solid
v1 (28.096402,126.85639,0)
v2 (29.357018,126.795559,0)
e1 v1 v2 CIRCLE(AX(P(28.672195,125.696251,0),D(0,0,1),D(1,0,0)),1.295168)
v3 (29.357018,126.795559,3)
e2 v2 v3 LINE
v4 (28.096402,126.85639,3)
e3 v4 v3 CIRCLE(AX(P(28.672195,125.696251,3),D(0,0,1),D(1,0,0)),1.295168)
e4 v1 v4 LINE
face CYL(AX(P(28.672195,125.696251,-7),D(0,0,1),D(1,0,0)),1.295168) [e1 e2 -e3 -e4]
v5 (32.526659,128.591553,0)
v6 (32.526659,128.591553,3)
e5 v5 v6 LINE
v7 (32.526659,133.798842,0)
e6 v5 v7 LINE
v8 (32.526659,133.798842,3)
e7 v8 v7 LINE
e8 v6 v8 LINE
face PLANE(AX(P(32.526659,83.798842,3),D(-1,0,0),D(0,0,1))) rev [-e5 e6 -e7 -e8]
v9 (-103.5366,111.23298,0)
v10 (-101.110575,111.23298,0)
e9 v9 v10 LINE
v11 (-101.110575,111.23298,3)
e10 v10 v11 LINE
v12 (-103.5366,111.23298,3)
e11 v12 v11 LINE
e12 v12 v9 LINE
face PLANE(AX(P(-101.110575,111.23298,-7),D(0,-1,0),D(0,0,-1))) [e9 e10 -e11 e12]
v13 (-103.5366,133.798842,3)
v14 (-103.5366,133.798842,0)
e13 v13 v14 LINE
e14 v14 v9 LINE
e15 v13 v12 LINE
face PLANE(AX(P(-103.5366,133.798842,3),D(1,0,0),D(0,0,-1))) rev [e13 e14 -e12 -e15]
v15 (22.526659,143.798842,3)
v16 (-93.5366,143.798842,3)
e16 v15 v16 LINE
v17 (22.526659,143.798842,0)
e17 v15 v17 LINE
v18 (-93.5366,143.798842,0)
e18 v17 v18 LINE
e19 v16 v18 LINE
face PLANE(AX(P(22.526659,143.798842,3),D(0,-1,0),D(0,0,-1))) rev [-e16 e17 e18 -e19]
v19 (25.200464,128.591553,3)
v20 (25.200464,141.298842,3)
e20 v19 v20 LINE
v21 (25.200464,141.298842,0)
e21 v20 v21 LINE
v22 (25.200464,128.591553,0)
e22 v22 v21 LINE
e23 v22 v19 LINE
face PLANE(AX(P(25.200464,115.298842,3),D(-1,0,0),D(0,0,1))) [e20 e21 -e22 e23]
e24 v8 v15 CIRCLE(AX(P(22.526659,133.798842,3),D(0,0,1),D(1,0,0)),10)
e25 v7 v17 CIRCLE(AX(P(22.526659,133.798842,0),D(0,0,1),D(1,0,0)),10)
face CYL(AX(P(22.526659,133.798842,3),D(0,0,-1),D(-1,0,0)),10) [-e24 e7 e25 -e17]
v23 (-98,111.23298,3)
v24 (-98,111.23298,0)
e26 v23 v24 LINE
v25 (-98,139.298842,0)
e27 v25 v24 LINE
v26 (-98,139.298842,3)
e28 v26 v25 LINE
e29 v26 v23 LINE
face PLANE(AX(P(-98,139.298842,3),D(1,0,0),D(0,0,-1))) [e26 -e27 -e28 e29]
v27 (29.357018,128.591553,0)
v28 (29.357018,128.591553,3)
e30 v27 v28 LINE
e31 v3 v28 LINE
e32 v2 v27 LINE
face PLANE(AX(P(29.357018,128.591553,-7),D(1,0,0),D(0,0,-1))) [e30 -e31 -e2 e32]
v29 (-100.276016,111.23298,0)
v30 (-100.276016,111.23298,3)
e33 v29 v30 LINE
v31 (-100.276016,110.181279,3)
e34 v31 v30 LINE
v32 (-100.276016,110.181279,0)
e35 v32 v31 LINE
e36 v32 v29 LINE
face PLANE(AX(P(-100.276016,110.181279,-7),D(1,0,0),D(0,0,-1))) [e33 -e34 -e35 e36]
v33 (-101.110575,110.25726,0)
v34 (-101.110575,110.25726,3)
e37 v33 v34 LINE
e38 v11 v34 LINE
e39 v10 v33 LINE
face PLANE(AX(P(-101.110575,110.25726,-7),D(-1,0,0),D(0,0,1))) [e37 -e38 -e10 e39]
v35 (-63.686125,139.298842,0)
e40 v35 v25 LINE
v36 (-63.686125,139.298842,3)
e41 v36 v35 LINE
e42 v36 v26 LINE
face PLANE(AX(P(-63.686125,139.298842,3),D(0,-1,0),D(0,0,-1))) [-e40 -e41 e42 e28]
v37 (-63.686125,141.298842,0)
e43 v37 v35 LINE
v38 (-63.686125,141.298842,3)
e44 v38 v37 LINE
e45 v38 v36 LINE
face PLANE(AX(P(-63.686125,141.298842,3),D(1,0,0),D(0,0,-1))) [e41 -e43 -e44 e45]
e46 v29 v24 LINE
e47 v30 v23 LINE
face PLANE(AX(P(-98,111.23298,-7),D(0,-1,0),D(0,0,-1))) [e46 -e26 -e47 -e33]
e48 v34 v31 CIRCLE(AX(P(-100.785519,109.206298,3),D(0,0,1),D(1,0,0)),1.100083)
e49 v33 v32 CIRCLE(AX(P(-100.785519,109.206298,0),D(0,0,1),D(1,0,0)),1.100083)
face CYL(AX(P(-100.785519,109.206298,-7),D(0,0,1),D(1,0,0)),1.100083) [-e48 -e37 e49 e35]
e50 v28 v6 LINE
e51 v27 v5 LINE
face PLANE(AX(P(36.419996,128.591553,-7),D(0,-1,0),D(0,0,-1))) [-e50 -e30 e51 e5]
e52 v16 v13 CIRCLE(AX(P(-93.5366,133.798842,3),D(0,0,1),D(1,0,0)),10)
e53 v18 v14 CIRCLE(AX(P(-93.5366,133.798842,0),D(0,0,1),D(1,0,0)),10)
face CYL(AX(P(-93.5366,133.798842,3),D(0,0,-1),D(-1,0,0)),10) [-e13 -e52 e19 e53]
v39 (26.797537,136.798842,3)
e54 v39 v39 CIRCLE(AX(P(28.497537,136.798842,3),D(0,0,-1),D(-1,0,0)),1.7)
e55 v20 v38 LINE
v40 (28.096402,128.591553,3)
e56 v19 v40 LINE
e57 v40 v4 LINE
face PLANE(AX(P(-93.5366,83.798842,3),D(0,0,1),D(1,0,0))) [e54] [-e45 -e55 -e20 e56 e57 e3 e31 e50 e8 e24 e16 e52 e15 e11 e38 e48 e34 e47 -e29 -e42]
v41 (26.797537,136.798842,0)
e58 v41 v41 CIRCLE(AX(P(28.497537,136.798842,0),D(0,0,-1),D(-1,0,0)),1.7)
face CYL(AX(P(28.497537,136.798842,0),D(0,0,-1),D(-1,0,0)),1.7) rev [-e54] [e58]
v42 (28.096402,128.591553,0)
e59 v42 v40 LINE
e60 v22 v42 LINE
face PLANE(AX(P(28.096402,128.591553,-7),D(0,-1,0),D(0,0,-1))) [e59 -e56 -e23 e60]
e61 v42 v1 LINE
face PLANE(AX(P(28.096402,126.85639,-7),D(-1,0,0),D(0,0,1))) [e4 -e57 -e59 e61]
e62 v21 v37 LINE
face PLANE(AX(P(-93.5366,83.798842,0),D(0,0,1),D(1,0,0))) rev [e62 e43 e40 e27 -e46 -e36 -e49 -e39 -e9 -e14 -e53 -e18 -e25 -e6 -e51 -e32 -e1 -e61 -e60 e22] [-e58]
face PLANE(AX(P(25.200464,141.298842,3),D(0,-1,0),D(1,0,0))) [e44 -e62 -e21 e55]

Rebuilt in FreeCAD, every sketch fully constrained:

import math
import FreeCAD as App
import Part
import Sketcher

V = App.Vector
Q = App.Units.Quantity

doc = App.newDocument("Part")
body = doc.addObject("PartDesign::Body", "Body")

sketch1 = body.newObject("Sketcher::SketchObject", "Sketch")
sketch1.AttachmentSupport = (doc.getObject("XY_Plane"), [""])
sketch1.MapMode = "FlatFace"
sketch1.addGeometry(Part.LineSegment(V(-93.5, 73.8, 0), V(22.5, 73.8, 0)), False)
sketch1.addGeometry(Part.ArcOfCircle(Part.Circle(V(22.5, 83.8, 0), V(0, 0, 1), 10), math.radians(-90), math.radians(0)), False)
sketch1.addGeometry(Part.LineSegment(V(32.5, 83.8, 0), V(32.5, 133.8, 0)), False)
sketch1.addGeometry(Part.ArcOfCircle(Part.Circle(V(22.5, 133.8, 0), V(0, 0, 1), 10), math.radians(0), math.radians(90)), False)
sketch1.addGeometry(Part.LineSegment(V(22.5, 143.8, 0), V(-93.5, 143.8, 0)), False)
sketch1.addGeometry(Part.ArcOfCircle(Part.Circle(V(-93.5, 133.8, 0), V(0, 0, 1), 10), math.radians(90), math.radians(180)), False)
sketch1.addGeometry(Part.LineSegment(V(-103.5, 133.8, 0), V(-103.5, 83.8, 0)), False)
sketch1.addGeometry(Part.ArcOfCircle(Part.Circle(V(-93.5, 83.8, 0), V(0, 0, 1), 10), math.radians(180), math.radians(270)), False)
sketch1.addGeometry(Part.LineSegment(V(7.2, 115.3, 0), V(7.2, 79.1, 0)), False)
sketch1.addGeometry(Part.LineSegment(V(7.2, 79.1, 0), V(-98, 79.1, 0)), False)
sketch1.addGeometry(Part.LineSegment(V(-98, 79.1, 0), V(-98, 139.3, 0)), False)
sketch1.addGeometry(Part.LineSegment(V(-98, 139.3, 0), V(-63.7, 139.3, 0)), False)
sketch1.addGeometry(Part.LineSegment(V(-63.7, 139.3, 0), V(-63.7, 141.3, 0)), False)
sketch1.addGeometry(Part.LineSegment(V(-63.7, 141.3, 0), V(25.2, 141.3, 0)), False)
sketch1.addGeometry(Part.LineSegment(V(25.2, 141.3, 0), V(25.2, 115.3, 0)), False)
sketch1.addGeometry(Part.LineSegment(V(25.2, 115.3, 0), V(7.2, 115.3, 0)), False)
sketch1.addConstraint(Sketcher.Constraint("Tangent", 0, 2, 1, 1))
sketch1.addConstraint(Sketcher.Constraint("Tangent", 1, 2, 2, 1))
sketch1.addConstraint(Sketcher.Constraint("Tangent", 2, 2, 3, 1))
sketch1.addConstraint(Sketcher.Constraint("Tangent", 3, 2, 4, 1))
sketch1.addConstraint(Sketcher.Constraint("Tangent", 4, 2, 5, 1))
sketch1.addConstraint(Sketcher.Constraint("Tangent", 5, 2, 6, 1))
sketch1.addConstraint(Sketcher.Constraint("Tangent", 6, 2, 7, 1))
sketch1.addConstraint(Sketcher.Constraint("Tangent", 7, 2, 0, 1))
sketch1.addConstraint(Sketcher.Constraint("Coincident", 8, 2, 9, 1))
sketch1.addConstraint(Sketcher.Constraint("Coincident", 9, 2, 10, 1))
sketch1.addConstraint(Sketcher.Constraint("Coincident", 10, 2, 11, 1))
sketch1.addConstraint(Sketcher.Constraint("Coincident", 11, 2, 12, 1))
sketch1.addConstraint(Sketcher.Constraint("Coincident", 12, 2, 13, 1))
sketch1.addConstraint(Sketcher.Constraint("Coincident", 13, 2, 14, 1))
sketch1.addConstraint(Sketcher.Constraint("Coincident", 14, 2, 15, 1))
sketch1.addConstraint(Sketcher.Constraint("Coincident", 15, 2, 8, 1))
sketch1.addConstraint(Sketcher.Constraint("Horizontal", 0))
sketch1.addConstraint(Sketcher.Constraint("Vertical", 2))
sketch1.addConstraint(Sketcher.Constraint("Horizontal", 4))
sketch1.addConstraint(Sketcher.Constraint("Vertical", 6))
sketch1.addConstraint(Sketcher.Constraint("Vertical", 8))
sketch1.addConstraint(Sketcher.Constraint("Horizontal", 9))
sketch1.addConstraint(Sketcher.Constraint("Vertical", 10))
sketch1.addConstraint(Sketcher.Constraint("Horizontal", 11))
sketch1.addConstraint(Sketcher.Constraint("Vertical", 12))
sketch1.addConstraint(Sketcher.Constraint("Horizontal", 13))
sketch1.addConstraint(Sketcher.Constraint("Vertical", 14))
sketch1.addConstraint(Sketcher.Constraint("Horizontal", 15))
sketch1.addConstraint(Sketcher.Constraint("Equal", 1, 3))
sketch1.addConstraint(Sketcher.Constraint("Equal", 3, 5))
sketch1.addConstraint(Sketcher.Constraint("Equal", 5, 7))
sketch1.addConstraint(Sketcher.Constraint("Radius", 1, Q("10 mm")))
sketch1.addConstraint(Sketcher.Constraint("DistanceY", 2, 1, 2, 2, Q("50 mm")))
sketch1.addConstraint(Sketcher.Constraint("DistanceY", 12, 1, 12, 2, Q("2 mm")))
sketch1.addConstraint(Sketcher.Constraint("DistanceY", 14, 2, 14, 1, Q("26 mm")))
sketch1.addConstraint(Sketcher.Constraint("DistanceX", 9, 2, -1, 1, Q("98 mm")))
sketch1.addConstraint(Sketcher.Constraint("DistanceY", 10, 2, 4, 2, Q("4.5 mm")))
sketch1.addConstraint(Sketcher.Constraint("DistanceX", 0, 1, 0, 2, Q("116.063259 mm")))
sketch1.addConstraint(Sketcher.Constraint("DistanceX", 9, 2, 9, 1, Q("105.241251 mm")))
sketch1.addConstraint(Sketcher.Constraint("DistanceX", 13, 1, 13, 2, Q("88.88659 mm")))
sketch1.addConstraint(Sketcher.Constraint("DistanceX", 5, 3, -1, 1, Q("93.5366 mm")))
sketch1.addConstraint(Sketcher.Constraint("DistanceX", 11, 1, 11, 2, Q("34.313875 mm")))
sketch1.addConstraint(Sketcher.Constraint("DistanceY", 8, 2, 8, 1, Q("36.185087 mm")))
sketch1.addConstraint(Sketcher.Constraint("DistanceY", -1, 1, 1, 3, Q("83.798842 mm")))
pad1 = body.newObject("PartDesign::Pad", "Pad")
pad1.Profile = sketch1
pad1.Length = 3

sketch2 = body.newObject("Sketcher::SketchObject", "Sketch001")
sketch2.AttachmentSupport = (doc.getObject("XY_Plane"), [""])
sketch2.MapMode = "FlatFace"
sketch2.addGeometry(Part.Circle(V(28.5, 136.8, 0), V(0, 0, 1), 1.7), False)
sketch2.addGeometry(Part.Circle(V(28.5, 81.8, 0), V(0, 0, 1), 1.7), False)
sketch2.addConstraint(Sketcher.Constraint("Equal", 0, 1))
sketch2.addConstraint(Sketcher.Constraint("Vertical", 0, 3, 1, 3))
sketch2.addConstraint(Sketcher.Constraint("Diameter", 0, Q("3.4 mm")))
sketch2.addConstraint(Sketcher.Constraint("DistanceY", 1, 3, 0, 3, Q("55 mm")))
sketch2.addConstraint(Sketcher.Constraint("DistanceY", -1, 1, 0, 3, Q("136.798842 mm")))
sketch2.addConstraint(Sketcher.Constraint("DistanceX", -1, 1, 0, 3, Q("28.497537 mm")))
doc.recompute()
hole = body.newObject("PartDesign::Hole", "Hole")
hole.Profile = sketch2
hole.ThreadType = "None"
hole.Diameter = 3.4
hole.DepthType = "ThroughAll"
hole.Reversed = True

sketch3 = body.newObject("Sketcher::SketchObject", "Sketch002")
sketch3.AttachmentSupport = (doc.getObject("XY_Plane"), [""])
sketch3.MapMode = "FlatFace"
sketch3.AttachmentOffset = App.Placement(V(0, 0, 3), App.Rotation())
sketch3.addGeometry(Part.LineSegment(V(-119.8, 160.1, 0), V(-119.8, 57.5, 0)), False)
sketch3.addGeometry(Part.LineSegment(V(-119.8, 57.5, 0), V(48.8, 57.5, 0)), False)
sketch3.addGeometry(Part.LineSegment(V(48.8, 57.5, 0), V(48.8, 160.1, 0)), False)
sketch3.addGeometry(Part.LineSegment(V(48.8, 160.1, 0), V(-119.8, 160.1, 0)), False)
sketch3.addGeometry(Part.LineSegment(V(25.2, 128.6, 0), V(-98, 111.2, 0)), False)
sketch3.addGeometry(Part.LineSegment(V(-98, 111.2, 0), V(-100.3, 111.2, 0)), False)
sketch3.addGeometry(Part.LineSegment(V(-100.3, 111.2, 0), V(-100.3, 110.2, 0)), False)
sketch3.addGeometry(Part.ArcOfCircle(Part.Circle(V(-100.8, 109.2, 0), V(0, 0, 1), 1.1), math.radians(107), math.radians(422)), False)
sketch3.addGeometry(Part.LineSegment(V(-101.1, 110.3, 0), V(-101.1, 111.2, 0)), False)
sketch3.addGeometry(Part.LineSegment(V(-101.1, 111.2, 0), V(-103.5, 111.2, 0)), False)
sketch3.addGeometry(Part.LineSegment(V(-103.5, 111.2, 0), V(-103.5, 155.2, 0)), False)
sketch3.addGeometry(Part.LineSegment(V(-103.5, 155.2, 0), V(37.5, 146.5, 0)), False)
sketch3.addGeometry(Part.LineSegment(V(37.5, 146.5, 0), V(36.4, 128.6, 0)), False)
sketch3.addGeometry(Part.LineSegment(V(36.4, 128.6, 0), V(29.4, 128.6, 0)), False)
sketch3.addGeometry(Part.LineSegment(V(29.4, 128.6, 0), V(29.4, 126.8, 0)), False)
sketch3.addGeometry(Part.ArcOfCircle(Part.Circle(V(28.7, 125.7, 0), V(0, 0, 1), 1.3), math.radians(116), math.radians(418)), False)
sketch3.addGeometry(Part.LineSegment(V(28.1, 126.9, 0), V(28.1, 128.6, 0)), False)
sketch3.addGeometry(Part.LineSegment(V(28.1, 128.6, 0), V(25.2, 128.6, 0)), False)
sketch3.addConstraint(Sketcher.Constraint("Coincident", 0, 2, 1, 1))
sketch3.addConstraint(Sketcher.Constraint("Coincident", 1, 2, 2, 1))
sketch3.addConstraint(Sketcher.Constraint("Coincident", 2, 2, 3, 1))
sketch3.addConstraint(Sketcher.Constraint("Coincident", 3, 2, 0, 1))
sketch3.addConstraint(Sketcher.Constraint("Coincident", 4, 2, 5, 1))
sketch3.addConstraint(Sketcher.Constraint("Coincident", 5, 2, 6, 1))
sketch3.addConstraint(Sketcher.Constraint("Coincident", 6, 2, 7, 2))
sketch3.addConstraint(Sketcher.Constraint("Coincident", 7, 1, 8, 1))
sketch3.addConstraint(Sketcher.Constraint("Coincident", 8, 2, 9, 1))
sketch3.addConstraint(Sketcher.Constraint("Coincident", 9, 2, 10, 1))
sketch3.addConstraint(Sketcher.Constraint("Coincident", 10, 2, 11, 1))
sketch3.addConstraint(Sketcher.Constraint("Coincident", 11, 2, 12, 1))
sketch3.addConstraint(Sketcher.Constraint("Coincident", 12, 2, 13, 1))
sketch3.addConstraint(Sketcher.Constraint("Coincident", 13, 2, 14, 1))
sketch3.addConstraint(Sketcher.Constraint("Coincident", 14, 2, 15, 2))
sketch3.addConstraint(Sketcher.Constraint("Coincident", 15, 1, 16, 1))
sketch3.addConstraint(Sketcher.Constraint("Coincident", 16, 2, 17, 1))
sketch3.addConstraint(Sketcher.Constraint("Coincident", 17, 2, 4, 1))
sketch3.addConstraint(Sketcher.Constraint("Vertical", 0))
sketch3.addConstraint(Sketcher.Constraint("Horizontal", 1))
sketch3.addConstraint(Sketcher.Constraint("Vertical", 2))
sketch3.addConstraint(Sketcher.Constraint("Horizontal", 3))
sketch3.addConstraint(Sketcher.Constraint("Horizontal", 5))
sketch3.addConstraint(Sketcher.Constraint("Vertical", 6))
sketch3.addConstraint(Sketcher.Constraint("Vertical", 8))
sketch3.addConstraint(Sketcher.Constraint("Horizontal", 9))
sketch3.addConstraint(Sketcher.Constraint("Vertical", 10))
sketch3.addConstraint(Sketcher.Constraint("Horizontal", 13))
sketch3.addConstraint(Sketcher.Constraint("Vertical", 14))
sketch3.addConstraint(Sketcher.Constraint("Vertical", 16))
sketch3.addConstraint(Sketcher.Constraint("Horizontal", 17))
sketch3.addConstraint(Sketcher.Constraint("Perpendicular", 11, 12))
sketch3.addConstraint(Sketcher.Constraint("Horizontal", 5, 2, 8, 2))
sketch3.addConstraint(Sketcher.Constraint("Horizontal", 13, 2, 16, 2))
sketch3.addConstraint(Sketcher.Constraint("DistanceX", 4, 2, -1, 1, Q("98 mm")))
sketch3.addConstraint(Sketcher.Constraint("Angle", 4, Q("-171.979991 deg")))
sketch3.addConstraint(Sketcher.Constraint("DistanceX", 1, 1, 1, 2, Q("168.672 mm")))
sketch3.addConstraint(Sketcher.Constraint("DistanceY", 0, 2, 0, 1, Q("102.608 mm")))
sketch3.addConstraint(Sketcher.Constraint("Radius", 15, Q("1.295168 mm")))
sketch3.addConstraint(Sketcher.Constraint("DistanceY", 6, 2, 6, 1, Q("1.051701 mm")))
sketch3.addConstraint(Sketcher.Constraint("DistanceX", 0, 2, -1, 1, Q("119.841 mm")))
sketch3.addConstraint(Sketcher.Constraint("DistanceY", -1, 1, 0, 2, Q("57.495 mm")))
sketch3.addConstraint(Sketcher.Constraint("Radius", 7, Q("1.100083 mm")))
sketch3.addConstraint(Sketcher.Constraint("DistanceY", 8, 1, 8, 2, Q("0.975721 mm")))
sketch3.addConstraint(Sketcher.Constraint("DistanceY", -1, 1, 7, 3, Q("109.206298 mm")))
sketch3.addConstraint(Sketcher.Constraint("DistanceX", 9, 2, -1, 1, Q("103.5366 mm")))
sketch3.addConstraint(Sketcher.Constraint("DistanceX", 15, 3, 12, 2, Q("7.747801 mm")))
sketch3.addConstraint(Sketcher.Constraint("DistanceY", 15, 3, 12, 2, Q("2.895302 mm")))
sketch3.addConstraint(Sketcher.Constraint("Distance", 4, Q("124.41734 mm")))
sketch3.addConstraint(Sketcher.Constraint("Distance", 11, Q("141.323938 mm")))
sketch3.addConstraint(Sketcher.Constraint("DistanceX", 5, 2, 5, 1, Q("2.276016 mm")))
sketch3.addConstraint(Sketcher.Constraint("DistanceX", 9, 2, 9, 1, Q("2.426025 mm")))
sketch3.addConstraint(Sketcher.Constraint("DistanceX", 13, 2, 13, 1, Q("7.062978 mm")))
sketch3.addConstraint(Sketcher.Constraint("DistanceX", 17, 2, 17, 1, Q("2.895938 mm")))
sketch3.addConstraint(Sketcher.Constraint("DistanceY", 10, 1, 10, 2, Q("43.936158 mm")))
sketch3.addConstraint(Sketcher.Constraint("DistanceY", 16, 1, 16, 2, Q("1.735162 mm")))
pocket1 = body.newObject("PartDesign::Pocket", "Pocket")
pocket1.Profile = sketch3
pocket1.Length = 10

doc.recompute()
